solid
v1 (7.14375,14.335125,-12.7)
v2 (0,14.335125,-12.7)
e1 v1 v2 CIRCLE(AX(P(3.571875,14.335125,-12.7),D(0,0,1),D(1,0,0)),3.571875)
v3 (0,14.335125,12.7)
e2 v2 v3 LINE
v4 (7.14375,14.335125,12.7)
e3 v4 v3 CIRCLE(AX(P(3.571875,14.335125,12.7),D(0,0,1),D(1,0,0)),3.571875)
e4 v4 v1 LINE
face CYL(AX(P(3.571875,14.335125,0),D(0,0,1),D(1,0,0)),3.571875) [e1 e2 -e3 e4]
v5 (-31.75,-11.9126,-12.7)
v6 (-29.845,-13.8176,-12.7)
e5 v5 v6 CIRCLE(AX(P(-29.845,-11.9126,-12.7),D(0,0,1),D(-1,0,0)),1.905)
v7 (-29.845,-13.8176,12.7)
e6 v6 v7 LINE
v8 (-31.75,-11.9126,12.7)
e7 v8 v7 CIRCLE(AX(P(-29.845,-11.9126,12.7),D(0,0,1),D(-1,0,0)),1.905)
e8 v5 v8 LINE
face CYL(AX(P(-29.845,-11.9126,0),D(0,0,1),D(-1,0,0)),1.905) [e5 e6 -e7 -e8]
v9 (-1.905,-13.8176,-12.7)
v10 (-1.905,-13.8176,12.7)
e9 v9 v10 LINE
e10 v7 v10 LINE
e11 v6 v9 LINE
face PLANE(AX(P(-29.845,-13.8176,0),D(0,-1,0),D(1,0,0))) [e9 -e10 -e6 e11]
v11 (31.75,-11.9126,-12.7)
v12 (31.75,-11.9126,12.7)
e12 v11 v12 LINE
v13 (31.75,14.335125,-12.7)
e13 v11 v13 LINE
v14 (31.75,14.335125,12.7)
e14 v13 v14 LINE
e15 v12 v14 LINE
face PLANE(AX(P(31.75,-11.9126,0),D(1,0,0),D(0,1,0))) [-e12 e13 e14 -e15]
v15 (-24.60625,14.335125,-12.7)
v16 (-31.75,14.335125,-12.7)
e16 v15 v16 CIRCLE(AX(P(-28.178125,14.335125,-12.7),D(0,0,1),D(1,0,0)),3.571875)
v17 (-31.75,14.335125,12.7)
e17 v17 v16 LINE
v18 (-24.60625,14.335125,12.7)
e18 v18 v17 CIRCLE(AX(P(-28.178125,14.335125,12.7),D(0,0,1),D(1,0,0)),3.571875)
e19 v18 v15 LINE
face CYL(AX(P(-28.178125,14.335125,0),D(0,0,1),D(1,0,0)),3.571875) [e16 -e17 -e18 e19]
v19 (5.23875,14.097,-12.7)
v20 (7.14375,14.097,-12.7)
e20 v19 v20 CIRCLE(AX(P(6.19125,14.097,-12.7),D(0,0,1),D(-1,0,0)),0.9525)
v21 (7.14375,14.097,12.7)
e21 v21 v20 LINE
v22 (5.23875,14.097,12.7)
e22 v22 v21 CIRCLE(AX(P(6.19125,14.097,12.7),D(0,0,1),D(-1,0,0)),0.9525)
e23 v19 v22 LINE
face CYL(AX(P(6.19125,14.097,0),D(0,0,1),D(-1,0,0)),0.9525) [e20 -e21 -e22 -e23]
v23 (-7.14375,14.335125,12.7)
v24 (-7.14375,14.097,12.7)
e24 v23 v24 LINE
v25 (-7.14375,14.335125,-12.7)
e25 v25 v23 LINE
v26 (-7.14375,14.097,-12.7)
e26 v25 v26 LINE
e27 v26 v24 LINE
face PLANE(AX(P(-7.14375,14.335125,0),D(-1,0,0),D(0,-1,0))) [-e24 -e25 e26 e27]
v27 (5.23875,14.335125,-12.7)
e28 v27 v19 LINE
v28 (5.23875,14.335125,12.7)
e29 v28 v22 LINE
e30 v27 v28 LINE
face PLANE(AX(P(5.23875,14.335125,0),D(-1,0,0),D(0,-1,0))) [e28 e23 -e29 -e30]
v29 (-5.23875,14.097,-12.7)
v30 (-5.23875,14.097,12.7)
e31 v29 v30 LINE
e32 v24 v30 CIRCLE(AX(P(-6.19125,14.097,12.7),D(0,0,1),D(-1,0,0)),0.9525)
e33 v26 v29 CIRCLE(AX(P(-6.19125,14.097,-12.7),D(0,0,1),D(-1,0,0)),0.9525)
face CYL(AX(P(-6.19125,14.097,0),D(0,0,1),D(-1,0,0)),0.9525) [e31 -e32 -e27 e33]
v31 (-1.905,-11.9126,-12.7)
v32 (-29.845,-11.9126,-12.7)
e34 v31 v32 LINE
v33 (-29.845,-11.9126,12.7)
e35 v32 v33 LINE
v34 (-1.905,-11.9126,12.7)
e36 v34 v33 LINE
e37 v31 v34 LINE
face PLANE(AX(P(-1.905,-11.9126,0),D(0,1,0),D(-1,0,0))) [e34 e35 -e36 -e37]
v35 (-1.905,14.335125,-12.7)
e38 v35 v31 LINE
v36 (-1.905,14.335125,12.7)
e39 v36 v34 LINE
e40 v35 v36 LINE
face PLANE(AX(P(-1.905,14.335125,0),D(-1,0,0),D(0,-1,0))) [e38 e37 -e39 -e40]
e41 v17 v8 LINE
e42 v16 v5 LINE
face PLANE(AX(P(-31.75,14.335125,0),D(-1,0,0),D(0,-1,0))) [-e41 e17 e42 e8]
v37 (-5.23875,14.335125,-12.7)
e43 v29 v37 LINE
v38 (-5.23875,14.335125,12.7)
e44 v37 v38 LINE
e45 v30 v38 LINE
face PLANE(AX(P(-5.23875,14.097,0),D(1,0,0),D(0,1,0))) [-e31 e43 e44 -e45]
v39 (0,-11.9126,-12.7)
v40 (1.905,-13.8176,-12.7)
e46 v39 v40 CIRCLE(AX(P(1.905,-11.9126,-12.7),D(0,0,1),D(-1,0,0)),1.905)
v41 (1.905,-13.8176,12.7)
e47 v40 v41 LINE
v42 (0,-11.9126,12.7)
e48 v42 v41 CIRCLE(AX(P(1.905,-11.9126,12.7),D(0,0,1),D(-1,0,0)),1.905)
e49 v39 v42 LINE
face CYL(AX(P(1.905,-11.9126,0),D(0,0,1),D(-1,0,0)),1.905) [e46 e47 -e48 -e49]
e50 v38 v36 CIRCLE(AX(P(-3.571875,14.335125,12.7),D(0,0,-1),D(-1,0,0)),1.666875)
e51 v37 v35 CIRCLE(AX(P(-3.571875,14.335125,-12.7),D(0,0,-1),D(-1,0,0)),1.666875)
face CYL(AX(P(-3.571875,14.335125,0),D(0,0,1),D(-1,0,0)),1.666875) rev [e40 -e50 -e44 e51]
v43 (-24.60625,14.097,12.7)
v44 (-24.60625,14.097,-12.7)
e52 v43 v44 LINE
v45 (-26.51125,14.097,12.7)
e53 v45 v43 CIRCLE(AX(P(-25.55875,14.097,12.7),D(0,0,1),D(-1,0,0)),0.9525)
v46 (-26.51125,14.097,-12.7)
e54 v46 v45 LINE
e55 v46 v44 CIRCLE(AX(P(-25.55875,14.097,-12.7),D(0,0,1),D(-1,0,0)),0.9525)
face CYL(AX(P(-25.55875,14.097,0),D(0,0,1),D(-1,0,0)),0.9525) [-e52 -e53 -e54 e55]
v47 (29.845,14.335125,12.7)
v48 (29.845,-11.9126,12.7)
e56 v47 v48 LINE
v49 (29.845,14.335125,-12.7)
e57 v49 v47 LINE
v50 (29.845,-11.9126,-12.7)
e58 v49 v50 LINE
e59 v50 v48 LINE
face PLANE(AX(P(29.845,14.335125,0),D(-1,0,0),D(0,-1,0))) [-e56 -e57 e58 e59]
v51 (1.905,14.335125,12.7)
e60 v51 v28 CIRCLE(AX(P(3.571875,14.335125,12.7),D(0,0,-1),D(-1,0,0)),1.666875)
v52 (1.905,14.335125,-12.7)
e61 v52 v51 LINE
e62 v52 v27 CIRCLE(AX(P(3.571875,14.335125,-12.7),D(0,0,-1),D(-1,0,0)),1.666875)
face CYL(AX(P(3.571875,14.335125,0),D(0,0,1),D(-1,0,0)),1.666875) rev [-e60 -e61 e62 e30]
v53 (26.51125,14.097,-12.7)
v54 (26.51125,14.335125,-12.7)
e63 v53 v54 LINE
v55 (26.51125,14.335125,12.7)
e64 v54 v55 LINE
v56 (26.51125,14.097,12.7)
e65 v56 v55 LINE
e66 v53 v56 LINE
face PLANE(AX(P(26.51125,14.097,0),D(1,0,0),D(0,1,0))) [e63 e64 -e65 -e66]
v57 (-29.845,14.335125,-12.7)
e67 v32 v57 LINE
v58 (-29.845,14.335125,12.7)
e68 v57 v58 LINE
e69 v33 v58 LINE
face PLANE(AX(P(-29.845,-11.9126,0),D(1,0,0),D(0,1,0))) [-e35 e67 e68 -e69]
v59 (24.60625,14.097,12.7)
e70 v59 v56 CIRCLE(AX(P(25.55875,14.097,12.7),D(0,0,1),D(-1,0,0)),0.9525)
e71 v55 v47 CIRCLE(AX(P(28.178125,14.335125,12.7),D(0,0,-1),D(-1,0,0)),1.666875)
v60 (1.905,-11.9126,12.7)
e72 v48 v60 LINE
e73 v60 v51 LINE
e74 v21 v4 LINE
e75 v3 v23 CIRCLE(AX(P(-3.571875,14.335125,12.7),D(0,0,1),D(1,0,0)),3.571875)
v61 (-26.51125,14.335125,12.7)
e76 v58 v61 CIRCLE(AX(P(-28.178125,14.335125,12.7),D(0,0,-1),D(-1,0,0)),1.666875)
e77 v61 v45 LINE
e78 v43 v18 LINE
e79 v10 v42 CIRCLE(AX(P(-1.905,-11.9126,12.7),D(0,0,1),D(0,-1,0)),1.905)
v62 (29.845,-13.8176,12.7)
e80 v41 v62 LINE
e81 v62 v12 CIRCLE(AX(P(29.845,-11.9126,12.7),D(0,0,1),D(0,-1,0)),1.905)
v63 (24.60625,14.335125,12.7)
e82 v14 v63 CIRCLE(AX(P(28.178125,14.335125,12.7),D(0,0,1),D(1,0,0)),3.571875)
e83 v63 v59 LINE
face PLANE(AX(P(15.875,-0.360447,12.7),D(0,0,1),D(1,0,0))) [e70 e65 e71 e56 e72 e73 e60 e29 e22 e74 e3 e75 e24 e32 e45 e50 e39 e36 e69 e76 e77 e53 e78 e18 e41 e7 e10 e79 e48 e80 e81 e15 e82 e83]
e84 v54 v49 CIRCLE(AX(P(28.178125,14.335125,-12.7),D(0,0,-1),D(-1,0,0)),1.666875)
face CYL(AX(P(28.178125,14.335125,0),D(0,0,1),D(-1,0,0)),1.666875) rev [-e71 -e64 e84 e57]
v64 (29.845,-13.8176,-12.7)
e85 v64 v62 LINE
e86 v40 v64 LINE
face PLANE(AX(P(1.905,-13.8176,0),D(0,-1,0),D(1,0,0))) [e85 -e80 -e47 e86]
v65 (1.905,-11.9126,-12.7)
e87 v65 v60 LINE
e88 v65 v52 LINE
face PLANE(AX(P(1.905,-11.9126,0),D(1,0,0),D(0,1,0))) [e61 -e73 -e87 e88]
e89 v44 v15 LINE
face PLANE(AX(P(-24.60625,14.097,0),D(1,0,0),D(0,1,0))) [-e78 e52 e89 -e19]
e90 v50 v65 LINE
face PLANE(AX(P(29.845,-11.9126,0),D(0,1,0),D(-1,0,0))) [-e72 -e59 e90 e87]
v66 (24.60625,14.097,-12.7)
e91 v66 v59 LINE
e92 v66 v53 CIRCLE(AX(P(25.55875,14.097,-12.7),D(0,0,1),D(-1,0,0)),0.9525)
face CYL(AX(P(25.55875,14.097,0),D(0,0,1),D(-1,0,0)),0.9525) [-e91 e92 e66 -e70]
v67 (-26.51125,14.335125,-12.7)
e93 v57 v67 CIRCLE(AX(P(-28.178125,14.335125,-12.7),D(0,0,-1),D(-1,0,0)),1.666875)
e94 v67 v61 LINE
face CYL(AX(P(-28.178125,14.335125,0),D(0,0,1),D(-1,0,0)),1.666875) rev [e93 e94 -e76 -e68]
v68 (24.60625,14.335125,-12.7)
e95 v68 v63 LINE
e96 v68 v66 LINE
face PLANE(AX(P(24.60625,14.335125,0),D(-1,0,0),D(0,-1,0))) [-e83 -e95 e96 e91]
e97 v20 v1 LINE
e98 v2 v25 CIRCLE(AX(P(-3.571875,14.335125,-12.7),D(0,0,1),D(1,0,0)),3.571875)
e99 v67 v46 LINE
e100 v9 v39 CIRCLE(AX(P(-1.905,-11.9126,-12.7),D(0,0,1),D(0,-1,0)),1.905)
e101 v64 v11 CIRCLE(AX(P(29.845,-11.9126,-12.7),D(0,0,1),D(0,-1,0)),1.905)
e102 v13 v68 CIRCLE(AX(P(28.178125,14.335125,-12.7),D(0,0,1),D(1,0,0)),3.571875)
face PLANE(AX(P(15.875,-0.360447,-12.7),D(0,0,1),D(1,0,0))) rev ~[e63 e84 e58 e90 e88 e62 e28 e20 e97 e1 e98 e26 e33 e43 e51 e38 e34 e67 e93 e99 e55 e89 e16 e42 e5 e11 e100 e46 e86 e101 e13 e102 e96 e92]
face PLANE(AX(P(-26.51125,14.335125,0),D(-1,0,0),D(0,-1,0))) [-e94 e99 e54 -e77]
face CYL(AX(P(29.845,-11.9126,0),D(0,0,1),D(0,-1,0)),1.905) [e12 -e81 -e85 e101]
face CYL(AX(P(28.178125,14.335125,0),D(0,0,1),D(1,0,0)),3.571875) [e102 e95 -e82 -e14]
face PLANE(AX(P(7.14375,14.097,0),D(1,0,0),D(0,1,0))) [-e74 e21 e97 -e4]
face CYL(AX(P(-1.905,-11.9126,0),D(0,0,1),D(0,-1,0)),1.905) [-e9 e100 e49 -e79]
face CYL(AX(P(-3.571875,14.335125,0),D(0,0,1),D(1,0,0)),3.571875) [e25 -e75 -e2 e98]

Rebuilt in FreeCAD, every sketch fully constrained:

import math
import FreeCAD as App
import Part
import Sketcher
Q = App.Units.Quantity

doc = App.newDocument("Part")
body = doc.addObject("PartDesign::Body", "Body")

sketch1 = body.newObject("Sketcher::SketchObject", "Sketch")
sketch1.AttachmentSupport = (doc.getObject("XY_Plane"), [""])
sketch1.MapMode = "FlatFace"
sketch1.addGeometry([
    Part.LineSegment(App.Vector(-31.75, 14.34, 0), App.Vector(-31.75, -11.91, 0)),
    Part.ArcOfCircle(Part.Circle(App.Vector(-29.84, -11.91, 0), App.Vector(0, 0, 1), 1.91), math.radians(-180), math.radians(-90)),
    Part.LineSegment(App.Vector(-29.84, -13.82, 0), App.Vector(-1.91, -13.82, 0)),
    Part.ArcOfCircle(Part.Circle(App.Vector(-1.91, -11.91, 0), App.Vector(0, 0, 1), 1.91), math.radians(-90), math.radians(0)),
    Part.LineSegment(App.Vector(0, -11.91, 0), App.Vector(0, 14.34, 0)),
    Part.ArcOfCircle(Part.Circle(App.Vector(-3.57, 14.34, 0), App.Vector(0, 0, 1), 3.57), math.radians(0), math.radians(180)),
    Part.LineSegment(App.Vector(-7.14, 14.34, 0), App.Vector(-7.14, 14.1, 0)),
    Part.ArcOfCircle(Part.Circle(App.Vector(-6.19, 14.1, 0), App.Vector(0, 0, 1), 0.95), math.radians(180), math.radians(360)),
    Part.LineSegment(App.Vector(-5.24, 14.1, 0), App.Vector(-5.24, 14.34, 0)),
    Part.ArcOfCircle(Part.Circle(App.Vector(-3.57, 14.34, 0), App.Vector(0, 0, 1), 1.67), math.radians(0), math.radians(180)),
    Part.LineSegment(App.Vector(-1.91, 14.34, 0), App.Vector(-1.91, -11.91, 0)),
    Part.LineSegment(App.Vector(-1.91, -11.91, 0), App.Vector(-29.84, -11.91, 0)),
    Part.LineSegment(App.Vector(-29.84, -11.91, 0), App.Vector(-29.84, 14.34, 0)),
    Part.ArcOfCircle(Part.Circle(App.Vector(-28.18, 14.34, 0), App.Vector(0, 0, 1), 1.67), math.radians(0), math.radians(180)),
    Part.LineSegment(App.Vector(-26.51, 14.34, 0), App.Vector(-26.51, 14.1, 0)),
    Part.ArcOfCircle(Part.Circle(App.Vector(-25.56, 14.1, 0), App.Vector(0, 0, 1), 0.95), math.radians(180), math.radians(360)),
    Part.LineSegment(App.Vector(-24.61, 14.1, 0), App.Vector(-24.61, 14.34, 0)),
    Part.ArcOfCircle(Part.Circle(App.Vector(-28.18, 14.34, 0), App.Vector(0, 0, 1), 3.57), math.radians(0), math.radians(180)),
], False)
sketch1.addConstraint([
    Sketcher.Constraint("Tangent", 0, 2, 1, 1),
    Sketcher.Constraint("Tangent", 1, 2, 2, 1),
    Sketcher.Constraint("Tangent", 2, 2, 3, 1),
    Sketcher.Constraint("Tangent", 3, 2, 4, 1),
    Sketcher.Constraint("Tangent", 4, 2, 5, 1),
    Sketcher.Constraint("Tangent", 5, 2, 6, 1),
    Sketcher.Constraint("Tangent", 6, 2, 7, 1),
    Sketcher.Constraint("Tangent", 7, 2, 8, 1),
    Sketcher.Constraint("Tangent", 8, 2, 9, 2),
    Sketcher.Constraint("Tangent", 9, 1, 10, 1),
    Sketcher.Constraint("Coincident", 10, 2, 11, 1),
    Sketcher.Constraint("Coincident", 11, 2, 12, 1),
    Sketcher.Constraint("Tangent", 12, 2, 13, 2),
    Sketcher.Constraint("Tangent", 13, 1, 14, 1),
    Sketcher.Constraint("Tangent", 14, 2, 15, 1),
    Sketcher.Constraint("Tangent", 15, 2, 16, 1),
    Sketcher.Constraint("Tangent", 16, 2, 17, 1),
    Sketcher.Constraint("Tangent", 17, 2, 0, 1),
    Sketcher.Constraint("Vertical", 0),
    Sketcher.Constraint("Horizontal", 2),
    Sketcher.Constraint("Vertical", 4),
    Sketcher.Constraint("Vertical", 6),
    Sketcher.Constraint("Vertical", 8),
    Sketcher.Constraint("Vertical", 10),
    Sketcher.Constraint("Horizontal", 11),
    Sketcher.Constraint("Vertical", 12),
    Sketcher.Constraint("Vertical", 14),
    Sketcher.Constraint("Vertical", 16),
    Sketcher.Constraint("Coincident", 9, 3, 5, 3),
    Sketcher.Constraint("Coincident", 17, 3, 13, 3),
    Sketcher.Constraint("Coincident", 10, 2, 3, 3),
    Sketcher.Constraint("Coincident", 11, 2, 1, 3),
    Sketcher.Constraint("Equal", 9, 13),
    Sketcher.Constraint("PointOnObject", 3, 2, -2),
    Sketcher.Constraint("Horizontal", 9, 3, 13, 3),
    Sketcher.Constraint("Horizontal", 7, 3, 15, 3),
    Sketcher.Constraint("DistanceX", 2, 1, 2, 2, Q("1.1 in")),
    Sketcher.Constraint("Radius", 1, Q("0.075 in")),
    Sketcher.Constraint("Radius", 5, Q("0.140625 in")),
    Sketcher.Constraint("DistanceY", 1, 3, -1, 1, Q("0.469 in")),
    Sketcher.Constraint("DistanceY", -1, 1, 7, 3, Q("0.555 in")),
    Sketcher.Constraint("DistanceY", 0, 2, 0, 1, 26.247725),
])
pad1 = body.newObject("PartDesign::Pad", "Pad")
pad1.Profile = sketch1
pad1.Length = Q("1 in")
pad1.Midplane = True
doc.recompute()

linearpattern = body.newObject("PartDesign::LinearPattern", "LinearPattern")
linearpattern.Originals = [pad1]
linearpattern.Direction = (doc.getObject("X_Axis"), [""])
linearpattern.Mode = "offset"
linearpattern.Offset = Q("1.25 in")
linearpattern.Occurrences = 2
body.Tip = linearpattern

doc.recompute()
